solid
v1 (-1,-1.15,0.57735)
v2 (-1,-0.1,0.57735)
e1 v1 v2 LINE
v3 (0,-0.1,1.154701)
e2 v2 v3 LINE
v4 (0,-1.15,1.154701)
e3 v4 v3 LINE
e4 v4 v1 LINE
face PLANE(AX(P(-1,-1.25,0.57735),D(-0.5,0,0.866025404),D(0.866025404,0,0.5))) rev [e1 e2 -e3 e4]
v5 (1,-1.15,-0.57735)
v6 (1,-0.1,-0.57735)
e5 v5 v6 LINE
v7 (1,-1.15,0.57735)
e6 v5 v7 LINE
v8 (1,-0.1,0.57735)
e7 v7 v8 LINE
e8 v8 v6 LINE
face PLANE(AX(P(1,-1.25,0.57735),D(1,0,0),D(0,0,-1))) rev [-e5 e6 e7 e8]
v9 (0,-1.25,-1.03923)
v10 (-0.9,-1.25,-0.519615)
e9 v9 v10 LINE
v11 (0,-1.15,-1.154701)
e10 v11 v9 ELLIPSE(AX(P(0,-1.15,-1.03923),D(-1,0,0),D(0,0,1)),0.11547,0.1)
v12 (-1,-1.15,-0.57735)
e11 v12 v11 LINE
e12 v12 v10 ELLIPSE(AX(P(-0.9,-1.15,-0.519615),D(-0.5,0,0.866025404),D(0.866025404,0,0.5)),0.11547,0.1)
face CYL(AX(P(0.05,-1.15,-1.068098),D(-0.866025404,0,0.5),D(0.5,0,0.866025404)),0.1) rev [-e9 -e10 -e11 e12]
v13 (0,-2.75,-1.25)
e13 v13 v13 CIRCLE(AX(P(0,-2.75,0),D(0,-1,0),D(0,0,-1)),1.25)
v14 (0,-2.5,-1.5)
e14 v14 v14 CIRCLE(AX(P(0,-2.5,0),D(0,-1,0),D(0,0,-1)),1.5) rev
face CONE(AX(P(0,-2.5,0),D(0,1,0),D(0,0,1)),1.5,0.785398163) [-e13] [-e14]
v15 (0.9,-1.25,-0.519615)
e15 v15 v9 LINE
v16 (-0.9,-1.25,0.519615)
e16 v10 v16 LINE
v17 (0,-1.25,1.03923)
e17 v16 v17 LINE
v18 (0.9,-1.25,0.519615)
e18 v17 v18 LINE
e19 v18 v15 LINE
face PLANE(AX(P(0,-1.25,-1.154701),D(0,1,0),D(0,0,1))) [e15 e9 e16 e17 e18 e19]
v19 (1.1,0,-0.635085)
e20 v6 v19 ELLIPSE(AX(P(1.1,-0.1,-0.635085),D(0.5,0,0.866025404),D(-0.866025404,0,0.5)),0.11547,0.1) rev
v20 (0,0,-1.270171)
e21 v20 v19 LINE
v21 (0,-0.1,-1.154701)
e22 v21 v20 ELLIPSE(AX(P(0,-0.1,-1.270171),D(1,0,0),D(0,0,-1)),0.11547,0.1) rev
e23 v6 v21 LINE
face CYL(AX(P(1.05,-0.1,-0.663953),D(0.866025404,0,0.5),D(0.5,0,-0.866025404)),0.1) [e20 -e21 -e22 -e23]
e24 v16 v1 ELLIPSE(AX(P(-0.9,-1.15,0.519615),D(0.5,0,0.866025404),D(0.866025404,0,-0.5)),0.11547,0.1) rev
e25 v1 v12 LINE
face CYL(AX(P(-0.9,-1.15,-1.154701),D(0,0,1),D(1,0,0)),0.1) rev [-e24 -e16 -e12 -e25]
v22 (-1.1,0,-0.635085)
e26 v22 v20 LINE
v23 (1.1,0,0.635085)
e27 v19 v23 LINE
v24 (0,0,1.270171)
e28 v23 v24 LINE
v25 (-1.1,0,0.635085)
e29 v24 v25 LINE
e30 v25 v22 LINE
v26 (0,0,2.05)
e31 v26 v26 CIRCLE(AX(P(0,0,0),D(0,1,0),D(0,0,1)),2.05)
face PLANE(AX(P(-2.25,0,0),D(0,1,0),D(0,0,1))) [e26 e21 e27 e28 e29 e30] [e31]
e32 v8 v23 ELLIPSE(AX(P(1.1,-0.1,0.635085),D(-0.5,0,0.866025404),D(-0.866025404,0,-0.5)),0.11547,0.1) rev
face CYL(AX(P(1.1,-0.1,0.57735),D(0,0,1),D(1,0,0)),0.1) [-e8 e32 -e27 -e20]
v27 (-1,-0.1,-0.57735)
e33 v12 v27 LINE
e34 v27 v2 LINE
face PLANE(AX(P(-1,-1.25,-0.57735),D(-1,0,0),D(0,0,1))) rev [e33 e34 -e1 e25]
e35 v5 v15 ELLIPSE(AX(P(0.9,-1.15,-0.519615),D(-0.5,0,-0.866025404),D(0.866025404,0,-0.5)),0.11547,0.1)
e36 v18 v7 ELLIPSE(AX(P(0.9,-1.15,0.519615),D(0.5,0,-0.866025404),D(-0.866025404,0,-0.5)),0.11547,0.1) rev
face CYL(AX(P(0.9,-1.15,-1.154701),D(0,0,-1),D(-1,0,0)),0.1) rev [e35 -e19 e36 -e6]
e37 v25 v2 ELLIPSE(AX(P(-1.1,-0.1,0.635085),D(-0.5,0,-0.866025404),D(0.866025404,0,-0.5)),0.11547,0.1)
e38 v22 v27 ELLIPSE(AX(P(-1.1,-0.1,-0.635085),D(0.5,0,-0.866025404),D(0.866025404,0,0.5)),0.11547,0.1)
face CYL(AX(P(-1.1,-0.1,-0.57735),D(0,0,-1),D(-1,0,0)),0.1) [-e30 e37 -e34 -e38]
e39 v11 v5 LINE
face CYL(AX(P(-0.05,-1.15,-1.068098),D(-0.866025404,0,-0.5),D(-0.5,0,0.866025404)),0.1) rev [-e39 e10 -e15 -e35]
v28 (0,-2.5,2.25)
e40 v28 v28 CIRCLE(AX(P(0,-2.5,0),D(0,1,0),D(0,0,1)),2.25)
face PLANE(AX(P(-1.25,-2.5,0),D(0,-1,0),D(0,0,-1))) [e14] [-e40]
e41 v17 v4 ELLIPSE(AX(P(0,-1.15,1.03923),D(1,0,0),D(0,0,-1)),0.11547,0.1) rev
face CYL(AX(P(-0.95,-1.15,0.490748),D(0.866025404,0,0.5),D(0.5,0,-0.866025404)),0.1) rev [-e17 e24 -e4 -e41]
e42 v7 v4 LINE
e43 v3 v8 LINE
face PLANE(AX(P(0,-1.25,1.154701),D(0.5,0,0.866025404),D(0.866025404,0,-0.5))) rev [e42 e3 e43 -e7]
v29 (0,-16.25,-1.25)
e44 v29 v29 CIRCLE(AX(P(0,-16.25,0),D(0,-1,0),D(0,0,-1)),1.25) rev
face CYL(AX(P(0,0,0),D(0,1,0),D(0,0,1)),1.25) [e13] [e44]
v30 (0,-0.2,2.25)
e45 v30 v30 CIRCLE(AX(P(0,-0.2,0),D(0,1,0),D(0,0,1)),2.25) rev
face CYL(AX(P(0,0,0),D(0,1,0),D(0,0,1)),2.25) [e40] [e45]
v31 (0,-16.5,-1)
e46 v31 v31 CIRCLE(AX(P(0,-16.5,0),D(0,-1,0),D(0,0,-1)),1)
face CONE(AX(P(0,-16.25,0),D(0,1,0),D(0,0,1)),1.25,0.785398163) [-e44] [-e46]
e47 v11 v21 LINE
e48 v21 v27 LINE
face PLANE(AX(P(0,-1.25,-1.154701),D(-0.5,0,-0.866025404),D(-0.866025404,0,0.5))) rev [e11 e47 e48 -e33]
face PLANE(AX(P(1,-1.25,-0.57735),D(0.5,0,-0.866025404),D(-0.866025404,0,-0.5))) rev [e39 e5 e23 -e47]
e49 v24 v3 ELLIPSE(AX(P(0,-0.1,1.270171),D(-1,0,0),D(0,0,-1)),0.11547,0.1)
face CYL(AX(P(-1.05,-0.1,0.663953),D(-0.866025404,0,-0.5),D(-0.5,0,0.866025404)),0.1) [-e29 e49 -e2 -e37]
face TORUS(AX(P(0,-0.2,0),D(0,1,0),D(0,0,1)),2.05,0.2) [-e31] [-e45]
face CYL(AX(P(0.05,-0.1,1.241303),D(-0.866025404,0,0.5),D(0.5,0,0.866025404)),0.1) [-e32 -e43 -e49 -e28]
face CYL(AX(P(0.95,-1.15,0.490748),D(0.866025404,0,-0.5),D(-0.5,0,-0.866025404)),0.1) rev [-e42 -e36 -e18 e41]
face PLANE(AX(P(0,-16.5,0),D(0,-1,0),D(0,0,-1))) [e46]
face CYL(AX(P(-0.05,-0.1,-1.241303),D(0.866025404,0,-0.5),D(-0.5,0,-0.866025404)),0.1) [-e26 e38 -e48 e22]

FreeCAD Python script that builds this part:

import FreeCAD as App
import Part
import Sketcher
Q = App.Units.Quantity


def edges_at(feature, points):
    """Names of the edges that pass closest to the given points."""
    edges = feature.Shape.Edges
    near = lambda p: min(range(len(edges)), key=lambda i: edges[i].distToShape(Part.Vertex(*p))[0])
    return sorted({f"Edge{near(p) + 1}" for p in points})


def add_polygon(sketch, points):
    """Adds a closed chain of lines whose ends are joined by coincident constraints."""
    first, n = sketch.GeometryCount, len(points)
    for a, b in zip(points, points[1:] + points[:1]):
        sketch.addGeometry(Part.LineSegment(App.Vector(*a, 0), App.Vector(*b, 0)), False)
    for i in range(n):
        sketch.addConstraint(Sketcher.Constraint("Coincident", first + i, 2, first + (i + 1) % n, 1))

doc = App.newDocument("Part")
body = doc.addObject("PartDesign::Body", "Body")

sketch1 = body.newObject("Sketcher::SketchObject", "Sketch")
sketch1.AttachmentSupport = (doc.getObject("XY_Plane"), [""])
sketch1.MapMode = "FlatFace"
add_polygon(sketch1, [(-1.25, -16.5), (0, -16.5), (0, 0), (-2.25, 0), (-2.25, -2.5), (-1.25, -2.5)])
sketch1.addConstraint(Sketcher.Constraint("Horizontal", 0))
sketch1.addConstraint(Sketcher.Constraint("Vertical", 1))
sketch1.addConstraint(Sketcher.Constraint("Horizontal", 2))
sketch1.addConstraint(Sketcher.Constraint("Vertical", 3))
sketch1.addConstraint(Sketcher.Constraint("Horizontal", 4))
sketch1.addConstraint(Sketcher.Constraint("Vertical", 5))
sketch1.addConstraint(Sketcher.Constraint("Coincident", 1, 2, -1, 1))
sketch1.addConstraint(Sketcher.Constraint("DistanceX", 4, 1, 4, 2, Q("1 mm")))
sketch1.addConstraint(Sketcher.Constraint("DistanceY", 5, 2, 5, 1, Q("14 mm")))
sketch1.addConstraint(Sketcher.Constraint("DistanceY", 1, 1, 1, 2, Q("16.5 mm")))
sketch1.addConstraint(Sketcher.Constraint("DistanceX", 0, 1, 0, 2, Q("1.25 mm")))
revolution = body.newObject("PartDesign::Revolution", "Revolution")
revolution.Profile = sketch1
revolution.ReferenceAxis = (sketch1, ["V_Axis"])
revolution.Angle = 360
doc.recompute()

chamfer = body.newObject("PartDesign::Chamfer", "Chamfer")
chamfer.Base = (revolution, edges_at(revolution, [(0, -2.5, -1.25), (0, -16.5, -1.25)]))
chamfer.Size = 0.25
doc.recompute()

fillet = body.newObject("PartDesign::Fillet", "Fillet")
fillet.Base = (chamfer, edges_at(chamfer, [(0, 0, -2.25)]))
fillet.Radius = 0.2

sketch2 = body.newObject("Sketcher::SketchObject", "Sketch001")
sketch2.AttachmentSupport = (doc.getObject("XZ_Plane"), [""])
sketch2.MapMode = "FlatFace"
add_polygon(sketch2, [(0, -1.154701), (-1, -0.57735), (-1, 0.57735), (0, 1.154701), (1, 0.57735), (1, -0.57735)])
sketch2.addConstraint(Sketcher.Constraint("Vertical", 1))
sketch2.addConstraint(Sketcher.Constraint("Vertical", 4))
sketch2.addConstraint(Sketcher.Constraint("Symmetric", 0, 2, 3, 2, -1, 1))
sketch2.addConstraint(Sketcher.Constraint("Symmetric", 2, 2, 5, 2, -1, 1))
sketch2.addConstraint(Sketcher.Constraint("PointOnObject", 2, 2, -2))
sketch2.addConstraint(Sketcher.Constraint("Parallel", 2, 5))
sketch2.addConstraint(Sketcher.Constraint("Horizontal", 1, 2, 3, 2))
sketch2.addConstraint(Sketcher.Constraint("Angle", 0, Q("150 deg")))
sketch2.addConstraint(Sketcher.Constraint("DistanceX", 0, 2, -1, 1, Q("1 mm")))
sketch2.addConstraint(Sketcher.Constraint("DistanceY", 1, 1, 1, 2, Q("1.154701 mm")))
pocket1 = body.newObject("PartDesign::Pocket", "Pocket")
pocket1.Profile = sketch2
pocket1.Length = 1.25
pocket1.Reversed = True
doc.recompute()

fillet2 = body.newObject("PartDesign::Fillet", "Fillet001")
fillet2.Base = (pocket1, edges_at(pocket1, [
    (0.5, -1.25, -0.866),
    (1, -1.25, 0),
    (0.5, -1.25, 0.866),
    (-0.5, -1.25, 0.866),
    (-1, -1.25, 0),
    (-0.5, -1.25, -0.866),
    (0.5, 0, -0.866),
    (-0.5, 0, -0.866),
    (-1, 0, 0),
    (-0.5, 0, 0.866),
    (0.5, 0, 0.866),
    (1, 0, 0),
]))
fillet2.Radius = 0.1

doc.recompute()
